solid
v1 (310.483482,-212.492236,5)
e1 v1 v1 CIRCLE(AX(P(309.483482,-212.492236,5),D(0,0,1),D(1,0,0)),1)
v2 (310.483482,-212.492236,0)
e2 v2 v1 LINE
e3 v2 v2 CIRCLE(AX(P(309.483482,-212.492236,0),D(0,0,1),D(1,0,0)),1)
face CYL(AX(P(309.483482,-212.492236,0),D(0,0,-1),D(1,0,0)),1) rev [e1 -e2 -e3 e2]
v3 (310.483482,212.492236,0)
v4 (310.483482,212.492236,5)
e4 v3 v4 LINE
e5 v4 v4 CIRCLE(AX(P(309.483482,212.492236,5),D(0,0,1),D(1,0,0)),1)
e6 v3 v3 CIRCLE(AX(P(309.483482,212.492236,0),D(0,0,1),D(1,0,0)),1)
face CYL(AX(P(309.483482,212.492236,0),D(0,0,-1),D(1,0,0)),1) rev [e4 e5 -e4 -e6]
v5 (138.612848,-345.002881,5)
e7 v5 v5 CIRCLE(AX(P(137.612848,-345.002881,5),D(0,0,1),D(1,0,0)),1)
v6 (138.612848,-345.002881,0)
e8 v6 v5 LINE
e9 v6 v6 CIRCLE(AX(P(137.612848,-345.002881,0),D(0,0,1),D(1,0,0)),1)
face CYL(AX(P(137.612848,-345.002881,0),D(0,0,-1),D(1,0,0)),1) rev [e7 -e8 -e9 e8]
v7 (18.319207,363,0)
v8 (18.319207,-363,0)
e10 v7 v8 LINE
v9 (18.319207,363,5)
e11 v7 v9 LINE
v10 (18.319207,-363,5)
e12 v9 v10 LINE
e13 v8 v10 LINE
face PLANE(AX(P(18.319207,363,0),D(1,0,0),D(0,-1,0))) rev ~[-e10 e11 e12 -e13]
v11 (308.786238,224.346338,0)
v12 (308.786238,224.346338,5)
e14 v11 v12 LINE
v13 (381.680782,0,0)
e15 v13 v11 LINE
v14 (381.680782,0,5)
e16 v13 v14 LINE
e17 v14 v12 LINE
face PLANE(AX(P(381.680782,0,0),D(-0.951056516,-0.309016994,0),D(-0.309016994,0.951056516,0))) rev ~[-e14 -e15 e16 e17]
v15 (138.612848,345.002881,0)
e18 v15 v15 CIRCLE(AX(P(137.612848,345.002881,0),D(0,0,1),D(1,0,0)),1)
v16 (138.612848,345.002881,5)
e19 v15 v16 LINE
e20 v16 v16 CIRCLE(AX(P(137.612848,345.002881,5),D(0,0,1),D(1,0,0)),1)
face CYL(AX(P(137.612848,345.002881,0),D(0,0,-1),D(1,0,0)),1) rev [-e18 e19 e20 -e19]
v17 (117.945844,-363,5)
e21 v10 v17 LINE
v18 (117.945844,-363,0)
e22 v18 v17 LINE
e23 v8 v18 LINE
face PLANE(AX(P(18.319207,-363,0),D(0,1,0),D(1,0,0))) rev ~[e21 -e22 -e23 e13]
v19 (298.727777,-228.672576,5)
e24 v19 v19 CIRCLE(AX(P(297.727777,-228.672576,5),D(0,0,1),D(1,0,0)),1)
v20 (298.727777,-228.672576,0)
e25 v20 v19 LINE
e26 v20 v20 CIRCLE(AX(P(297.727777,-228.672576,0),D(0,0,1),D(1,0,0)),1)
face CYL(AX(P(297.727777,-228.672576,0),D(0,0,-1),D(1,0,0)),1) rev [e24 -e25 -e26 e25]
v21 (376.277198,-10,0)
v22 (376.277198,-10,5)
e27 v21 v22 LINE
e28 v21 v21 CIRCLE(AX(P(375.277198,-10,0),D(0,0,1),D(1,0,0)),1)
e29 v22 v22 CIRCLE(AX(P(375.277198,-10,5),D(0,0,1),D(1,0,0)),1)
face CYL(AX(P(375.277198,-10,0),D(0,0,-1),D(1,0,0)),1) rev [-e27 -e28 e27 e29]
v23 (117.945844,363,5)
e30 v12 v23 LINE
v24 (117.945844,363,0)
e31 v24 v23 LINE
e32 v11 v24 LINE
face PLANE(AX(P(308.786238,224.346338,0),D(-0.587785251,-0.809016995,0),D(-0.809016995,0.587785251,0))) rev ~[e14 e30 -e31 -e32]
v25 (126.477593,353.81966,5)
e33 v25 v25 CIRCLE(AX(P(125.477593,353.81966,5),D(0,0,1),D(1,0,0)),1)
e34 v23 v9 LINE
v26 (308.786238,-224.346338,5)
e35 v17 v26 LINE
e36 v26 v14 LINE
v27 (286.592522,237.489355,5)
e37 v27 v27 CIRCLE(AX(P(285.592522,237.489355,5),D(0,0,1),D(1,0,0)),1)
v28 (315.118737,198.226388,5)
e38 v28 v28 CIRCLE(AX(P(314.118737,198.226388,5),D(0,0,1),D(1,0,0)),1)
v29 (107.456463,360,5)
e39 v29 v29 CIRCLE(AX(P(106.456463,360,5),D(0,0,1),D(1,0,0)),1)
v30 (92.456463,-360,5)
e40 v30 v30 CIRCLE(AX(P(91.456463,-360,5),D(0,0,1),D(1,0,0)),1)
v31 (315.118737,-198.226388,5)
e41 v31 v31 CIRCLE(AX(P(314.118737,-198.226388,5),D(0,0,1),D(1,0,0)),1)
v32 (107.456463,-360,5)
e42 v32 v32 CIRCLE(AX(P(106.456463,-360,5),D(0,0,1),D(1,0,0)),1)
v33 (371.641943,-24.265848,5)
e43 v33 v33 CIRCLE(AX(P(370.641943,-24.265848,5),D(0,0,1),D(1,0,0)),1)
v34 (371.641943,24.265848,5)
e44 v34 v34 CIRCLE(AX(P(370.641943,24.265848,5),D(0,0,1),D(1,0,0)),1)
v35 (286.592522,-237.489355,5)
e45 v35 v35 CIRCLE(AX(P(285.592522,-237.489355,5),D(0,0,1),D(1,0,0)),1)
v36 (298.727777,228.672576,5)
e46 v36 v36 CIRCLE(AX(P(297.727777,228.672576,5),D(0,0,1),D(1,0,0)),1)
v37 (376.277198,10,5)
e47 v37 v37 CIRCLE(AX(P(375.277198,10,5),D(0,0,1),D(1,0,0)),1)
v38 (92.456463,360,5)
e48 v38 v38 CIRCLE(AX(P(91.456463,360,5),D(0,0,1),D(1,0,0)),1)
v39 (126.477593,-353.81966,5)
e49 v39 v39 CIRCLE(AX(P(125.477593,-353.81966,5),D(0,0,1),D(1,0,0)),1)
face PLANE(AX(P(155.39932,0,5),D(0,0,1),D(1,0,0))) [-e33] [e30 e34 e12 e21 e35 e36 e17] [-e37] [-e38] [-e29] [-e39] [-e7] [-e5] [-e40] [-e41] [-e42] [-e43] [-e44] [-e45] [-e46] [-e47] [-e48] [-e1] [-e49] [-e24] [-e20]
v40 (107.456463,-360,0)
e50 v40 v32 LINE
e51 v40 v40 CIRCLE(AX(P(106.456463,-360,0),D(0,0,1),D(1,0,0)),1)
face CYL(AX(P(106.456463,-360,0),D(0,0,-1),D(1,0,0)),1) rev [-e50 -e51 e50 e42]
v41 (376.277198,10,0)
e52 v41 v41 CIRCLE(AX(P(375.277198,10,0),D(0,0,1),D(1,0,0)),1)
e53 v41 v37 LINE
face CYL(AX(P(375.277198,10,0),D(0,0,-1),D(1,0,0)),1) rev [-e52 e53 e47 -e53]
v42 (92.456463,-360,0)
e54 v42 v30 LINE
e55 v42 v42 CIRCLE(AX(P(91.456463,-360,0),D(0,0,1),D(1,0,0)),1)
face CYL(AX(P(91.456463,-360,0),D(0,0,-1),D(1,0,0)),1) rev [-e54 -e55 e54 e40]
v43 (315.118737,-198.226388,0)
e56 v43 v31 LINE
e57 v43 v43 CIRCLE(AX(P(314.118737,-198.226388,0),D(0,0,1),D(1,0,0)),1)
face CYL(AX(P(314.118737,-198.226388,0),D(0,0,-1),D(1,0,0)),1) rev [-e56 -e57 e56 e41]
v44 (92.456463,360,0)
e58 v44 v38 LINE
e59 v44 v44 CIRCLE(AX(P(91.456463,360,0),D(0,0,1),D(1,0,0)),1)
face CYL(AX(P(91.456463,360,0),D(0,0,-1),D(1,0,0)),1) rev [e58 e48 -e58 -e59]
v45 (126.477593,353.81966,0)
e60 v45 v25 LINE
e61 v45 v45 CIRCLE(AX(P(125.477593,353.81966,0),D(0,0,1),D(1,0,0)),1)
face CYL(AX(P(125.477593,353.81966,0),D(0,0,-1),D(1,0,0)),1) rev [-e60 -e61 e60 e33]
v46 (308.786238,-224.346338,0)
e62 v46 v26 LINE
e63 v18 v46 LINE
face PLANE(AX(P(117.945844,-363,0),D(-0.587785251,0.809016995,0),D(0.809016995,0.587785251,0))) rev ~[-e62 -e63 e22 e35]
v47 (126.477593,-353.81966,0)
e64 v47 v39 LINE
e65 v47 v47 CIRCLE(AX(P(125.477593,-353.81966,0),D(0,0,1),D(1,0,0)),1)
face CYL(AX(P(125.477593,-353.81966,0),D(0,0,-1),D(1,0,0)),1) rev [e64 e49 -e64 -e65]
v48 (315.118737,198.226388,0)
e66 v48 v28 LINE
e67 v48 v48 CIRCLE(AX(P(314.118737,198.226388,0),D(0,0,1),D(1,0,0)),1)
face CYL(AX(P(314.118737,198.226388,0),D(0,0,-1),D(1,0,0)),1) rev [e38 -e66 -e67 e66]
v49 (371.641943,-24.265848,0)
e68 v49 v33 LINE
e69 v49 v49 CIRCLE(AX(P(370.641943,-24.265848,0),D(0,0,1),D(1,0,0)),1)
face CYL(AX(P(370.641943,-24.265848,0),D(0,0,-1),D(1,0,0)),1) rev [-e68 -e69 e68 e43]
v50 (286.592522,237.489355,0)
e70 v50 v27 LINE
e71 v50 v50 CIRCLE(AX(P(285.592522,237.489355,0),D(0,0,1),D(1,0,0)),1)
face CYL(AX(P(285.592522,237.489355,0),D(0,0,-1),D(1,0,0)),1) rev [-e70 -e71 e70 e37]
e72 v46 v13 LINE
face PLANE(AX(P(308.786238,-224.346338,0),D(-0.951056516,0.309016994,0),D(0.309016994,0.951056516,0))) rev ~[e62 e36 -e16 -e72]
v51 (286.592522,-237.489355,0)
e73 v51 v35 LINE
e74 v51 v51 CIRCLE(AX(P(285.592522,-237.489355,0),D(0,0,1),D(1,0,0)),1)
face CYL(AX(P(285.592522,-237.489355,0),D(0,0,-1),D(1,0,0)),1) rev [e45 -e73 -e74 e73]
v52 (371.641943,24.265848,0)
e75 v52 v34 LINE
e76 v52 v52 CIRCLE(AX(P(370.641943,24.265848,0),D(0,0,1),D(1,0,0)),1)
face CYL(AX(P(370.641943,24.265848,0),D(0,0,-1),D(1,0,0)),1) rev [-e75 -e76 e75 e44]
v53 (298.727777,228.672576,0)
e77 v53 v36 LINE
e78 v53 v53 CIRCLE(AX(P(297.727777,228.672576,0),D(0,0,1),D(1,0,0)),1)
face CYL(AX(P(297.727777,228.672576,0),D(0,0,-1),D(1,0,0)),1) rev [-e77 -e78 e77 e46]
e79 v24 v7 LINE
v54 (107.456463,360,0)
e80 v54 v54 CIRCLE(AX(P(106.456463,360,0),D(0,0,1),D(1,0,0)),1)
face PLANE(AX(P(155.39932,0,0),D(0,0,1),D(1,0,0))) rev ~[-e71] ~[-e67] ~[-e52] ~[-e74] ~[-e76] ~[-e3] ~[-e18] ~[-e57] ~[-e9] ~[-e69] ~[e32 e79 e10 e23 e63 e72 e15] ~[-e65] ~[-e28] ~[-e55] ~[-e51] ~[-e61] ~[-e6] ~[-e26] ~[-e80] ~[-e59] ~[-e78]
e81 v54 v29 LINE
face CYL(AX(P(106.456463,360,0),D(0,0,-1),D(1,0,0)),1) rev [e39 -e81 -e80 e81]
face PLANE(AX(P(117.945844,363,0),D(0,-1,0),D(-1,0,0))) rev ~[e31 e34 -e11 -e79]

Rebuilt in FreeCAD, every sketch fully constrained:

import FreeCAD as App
import Part
import Sketcher
Q = App.Units.Quantity


def add_polygon(sketch, points):
    """Adds a closed chain of lines whose ends are joined by coincident constraints."""
    first, n = sketch.GeometryCount, len(points)
    for a, b in zip(points, points[1:] + points[:1]):
        sketch.addGeometry(Part.LineSegment(App.Vector(*a, 0), App.Vector(*b, 0)), False)
    for i in range(n):
        sketch.addConstraint(Sketcher.Constraint("Coincident", first + i, 2, first + (i + 1) % n, 1))

doc = App.newDocument("Part")
params = doc.addObject("Spreadsheet::Sheet", "Params")
for row, (alias, value) in enumerate([
    ("sketch1_diameter", "2 mm"),
    ("sketch1_height", "726 mm"),
    ("pad1_length", "5 mm"),
], start=1):
    params.set(f"A{row}", alias)
    params.set(f"B{row}", "=" + value)
    params.setAlias(f"B{row}", alias)

body = doc.addObject("PartDesign::Body", "Body")

# Sketch on XY plane
sketch1 = body.newObject("Sketcher::SketchObject", "Sketch")
sketch1.AttachmentSupport = (doc.getObject("XY_Plane"), [""])
sketch1.MapMode = "FlatFace"
add_polygon(sketch1, [(117.945844, 363), (18.319207, 363), (18.319207, -363), (117.945844, -363), (308.786238, -224.346338), (381.680782, 0), (308.786238, 224.346338)])  # lines 0-6
sketch1.addGeometry(Part.Circle(App.Vector(91.456463, -360, 0), App.Vector(0, 0, 1), 1), False)  # 7
sketch1.addGeometry(Part.Circle(App.Vector(106.456463, -360, 0), App.Vector(0, 0, 1), 1), False)  # 8
sketch1.addGeometry(Part.Circle(App.Vector(125.477593, -353.81966, 0), App.Vector(0, 0, 1), 1), False)  # 9
sketch1.addGeometry(Part.Circle(App.Vector(137.612848, -345.002881, 0), App.Vector(0, 0, 1), 1), False)  # 10
sketch1.addGeometry(Part.Circle(App.Vector(285.592522, -237.489355, 0), App.Vector(0, 0, 1), 1), False)  # 11
sketch1.addGeometry(Part.Circle(App.Vector(297.727777, -228.672576, 0), App.Vector(0, 0, 1), 1), False)  # 12
sketch1.addGeometry(Part.Circle(App.Vector(309.483482, -212.492236, 0), App.Vector(0, 0, 1), 1), False)  # 13
sketch1.addGeometry(Part.Circle(App.Vector(314.118737, -198.226388, 0), App.Vector(0, 0, 1), 1), False)  # 14
sketch1.addGeometry(Part.Circle(App.Vector(370.641943, -24.265848, 0), App.Vector(0, 0, 1), 1), False)  # 15
sketch1.addGeometry(Part.Circle(App.Vector(375.277198, -10, 0), App.Vector(0, 0, 1), 1), False)  # 16
sketch1.addGeometry(Part.Circle(App.Vector(91.456463, 360, 0), App.Vector(0, 0, 1), 1), False)  # 17
sketch1.addGeometry(Part.Circle(App.Vector(106.456463, 360, 0), App.Vector(0, 0, 1), 1), False)  # 18
sketch1.addGeometry(Part.Circle(App.Vector(125.477593, 353.81966, 0), App.Vector(0, 0, 1), 1), False)  # 19
sketch1.addGeometry(Part.Circle(App.Vector(137.612848, 345.002881, 0), App.Vector(0, 0, 1), 1), False)  # 20
sketch1.addGeometry(Part.Circle(App.Vector(375.277198, 10, 0), App.Vector(0, 0, 1), 1), False)  # 21
sketch1.addGeometry(Part.Circle(App.Vector(370.641943, 24.265848, 0), App.Vector(0, 0, 1), 1), False)  # 22
sketch1.addGeometry(Part.Circle(App.Vector(285.592522, 237.489355, 0), App.Vector(0, 0, 1), 1), False)  # 23
sketch1.addGeometry(Part.Circle(App.Vector(297.727777, 228.672576, 0), App.Vector(0, 0, 1), 1), False)  # 24
sketch1.addGeometry(Part.Circle(App.Vector(314.118737, 198.226388, 0), App.Vector(0, 0, 1), 1), False)  # 25
sketch1.addGeometry(Part.Circle(App.Vector(309.483482, 212.492236, 0), App.Vector(0, 0, 1), 1), False)  # 26
sketch1.addConstraint(Sketcher.Constraint("Horizontal", 0))
sketch1.addConstraint(Sketcher.Constraint("Vertical", 1))
sketch1.addConstraint(Sketcher.Constraint("Horizontal", 2))
sketch1.addConstraint(Sketcher.Constraint("Equal", 7, 8))
sketch1.addConstraint(Sketcher.Constraint("Equal", 8, 9))
sketch1.addConstraint(Sketcher.Constraint("Equal", 9, 10))
sketch1.addConstraint(Sketcher.Constraint("Equal", 10, 11))
sketch1.addConstraint(Sketcher.Constraint("Equal", 11, 12))
sketch1.addConstraint(Sketcher.Constraint("Equal", 12, 13))
sketch1.addConstraint(Sketcher.Constraint("Equal", 13, 14))
sketch1.addConstraint(Sketcher.Constraint("Equal", 14, 15))
sketch1.addConstraint(Sketcher.Constraint("Equal", 15, 16))
sketch1.addConstraint(Sketcher.Constraint("Equal", 16, 17))
sketch1.addConstraint(Sketcher.Constraint("Equal", 17, 18))
sketch1.addConstraint(Sketcher.Constraint("Equal", 18, 19))
sketch1.addConstraint(Sketcher.Constraint("Equal", 19, 20))
sketch1.addConstraint(Sketcher.Constraint("Equal", 20, 21))
sketch1.addConstraint(Sketcher.Constraint("Equal", 21, 22))
sketch1.addConstraint(Sketcher.Constraint("Equal", 22, 23))
sketch1.addConstraint(Sketcher.Constraint("Equal", 23, 24))
sketch1.addConstraint(Sketcher.Constraint("Equal", 24, 25))
sketch1.addConstraint(Sketcher.Constraint("Equal", 25, 26))
sketch1.addConstraint(Sketcher.Constraint("Symmetric", 7, 3, 17, 3, -1))
sketch1.addConstraint(Sketcher.Constraint("Symmetric", 8, 3, 18, 3, -1))
sketch1.addConstraint(Sketcher.Constraint("Symmetric", 9, 3, 19, 3, -1))
sketch1.addConstraint(Sketcher.Constraint("Symmetric", 10, 3, 20, 3, -1))
sketch1.addConstraint(Sketcher.Constraint("Symmetric", 16, 3, 21, 3, -1))
sketch1.addConstraint(Sketcher.Constraint("Symmetric", 15, 3, 22, 3, -1))
sketch1.addConstraint(Sketcher.Constraint("Symmetric", 11, 3, 23, 3, -1))
sketch1.addConstraint(Sketcher.Constraint("Symmetric", 12, 3, 24, 3, -1))
sketch1.addConstraint(Sketcher.Constraint("Symmetric", 14, 3, 25, 3, -1))
sketch1.addConstraint(Sketcher.Constraint("Symmetric", 13, 3, 26, 3, -1))
sketch1.addConstraint(Sketcher.Constraint("Symmetric", 3, 2, 5, 2, -1))
sketch1.addConstraint(Sketcher.Constraint("Symmetric", 2, 2, 6, 2, -1))
sketch1.addConstraint(Sketcher.Constraint("PointOnObject", 4, 2, -1))
sketch1.addConstraint(Sketcher.Constraint("Horizontal", 7, 3, 8, 3))
sketch1.addConstraint(Sketcher.Constraint("Equal", 3, 4))
sketch1.addConstraint(Sketcher.Constraint("Diameter", 7, Q("2 mm")))
sketch1.addConstraint(Sketcher.Constraint("DistanceY", 1, 2, 1, 1, Q("726 mm")))
sketch1.addConstraint(Sketcher.Constraint("Angle", 3, Q("36 deg")))
sketch1.addConstraint(Sketcher.Constraint("Angle", 4, Q("72 deg")))
sketch1.addConstraint(Sketcher.Constraint("DistanceY", 7, 3, -1, 1, Q("360 mm")))
sketch1.addConstraint(Sketcher.Constraint("DistanceY", 16, 3, -1, 1, Q("10 mm")))
sketch1.addConstraint(Sketcher.Constraint("DistanceX", 7, 3, 8, 3, Q("15 mm")))
sketch1.addConstraint(Sketcher.Constraint("DistanceX", -1, 1, 16, 3, Q("375.277198 mm")))
sketch1.addConstraint(Sketcher.Constraint("DistanceX", 3, 2, 14, 3, Q("5.332499 mm")))
sketch1.addConstraint(Sketcher.Constraint("DistanceX", 0, 2, 0, 1, Q("99.626637 mm")))
sketch1.addConstraint(Sketcher.Constraint("DistanceY", 9, 3, -1, 1, Q("353.81966 mm")))
sketch1.addConstraint(Sketcher.Constraint("DistanceX", -1, 1, 10, 3, Q("137.612848 mm")))
sketch1.addConstraint(Sketcher.Constraint("DistanceY", 10, 3, -1, 1, Q("345.002881 mm")))
sketch1.addConstraint(Sketcher.Constraint("DistanceX", -1, 1, 11, 3, Q("285.592522 mm")))
sketch1.addConstraint(Sketcher.Constraint("DistanceX", -1, 1, 13, 3, Q("309.483482 mm")))
sketch1.addConstraint(Sketcher.Constraint("DistanceX", -1, 1, 3, 2, Q("308.786238 mm")))
sketch1.addConstraint(Sketcher.Constraint("DistanceX", 8, 3, 9, 3, Q("19.02113 mm")))
sketch1.addConstraint(Sketcher.Constraint("DistanceX", 9, 3, 11, 3, Q("160.114929 mm")))
sketch1.addConstraint(Sketcher.Constraint("DistanceY", 11, 3, 12, 3, Q("8.816779 mm")))
sketch1.addConstraint(Sketcher.Constraint("DistanceX", 10, 3, 12, 3, Q("160.114929 mm")))
sketch1.addConstraint(Sketcher.Constraint("DistanceY", 12, 3, 13, 3, Q("16.18034 mm")))
sketch1.addConstraint(Sketcher.Constraint("DistanceY", 13, 3, 14, 3, Q("14.265848 mm")))
sketch1.addConstraint(Sketcher.Constraint("DistanceY", 14, 3, 15, 3, Q("173.96054 mm")))
sketch1.addConstraint(Sketcher.Constraint("DistanceX", 13, 3, 15, 3, Q("61.158461 mm")))
sketch1.addConstraint(Sketcher.Constraint("DistanceY", 15, 3, 17, 3, Q("384.265848 mm")))
sketch1.setExpression("Constraints[44]", "Params.sketch1_diameter")
sketch1.setExpression("Constraints[45]", "Params.sketch1_height")
pad1 = body.newObject("PartDesign::Pad", "Pad")
pad1.Profile = sketch1
pad1.setExpression("Length", "Params.pad1_length")

doc.recompute()
